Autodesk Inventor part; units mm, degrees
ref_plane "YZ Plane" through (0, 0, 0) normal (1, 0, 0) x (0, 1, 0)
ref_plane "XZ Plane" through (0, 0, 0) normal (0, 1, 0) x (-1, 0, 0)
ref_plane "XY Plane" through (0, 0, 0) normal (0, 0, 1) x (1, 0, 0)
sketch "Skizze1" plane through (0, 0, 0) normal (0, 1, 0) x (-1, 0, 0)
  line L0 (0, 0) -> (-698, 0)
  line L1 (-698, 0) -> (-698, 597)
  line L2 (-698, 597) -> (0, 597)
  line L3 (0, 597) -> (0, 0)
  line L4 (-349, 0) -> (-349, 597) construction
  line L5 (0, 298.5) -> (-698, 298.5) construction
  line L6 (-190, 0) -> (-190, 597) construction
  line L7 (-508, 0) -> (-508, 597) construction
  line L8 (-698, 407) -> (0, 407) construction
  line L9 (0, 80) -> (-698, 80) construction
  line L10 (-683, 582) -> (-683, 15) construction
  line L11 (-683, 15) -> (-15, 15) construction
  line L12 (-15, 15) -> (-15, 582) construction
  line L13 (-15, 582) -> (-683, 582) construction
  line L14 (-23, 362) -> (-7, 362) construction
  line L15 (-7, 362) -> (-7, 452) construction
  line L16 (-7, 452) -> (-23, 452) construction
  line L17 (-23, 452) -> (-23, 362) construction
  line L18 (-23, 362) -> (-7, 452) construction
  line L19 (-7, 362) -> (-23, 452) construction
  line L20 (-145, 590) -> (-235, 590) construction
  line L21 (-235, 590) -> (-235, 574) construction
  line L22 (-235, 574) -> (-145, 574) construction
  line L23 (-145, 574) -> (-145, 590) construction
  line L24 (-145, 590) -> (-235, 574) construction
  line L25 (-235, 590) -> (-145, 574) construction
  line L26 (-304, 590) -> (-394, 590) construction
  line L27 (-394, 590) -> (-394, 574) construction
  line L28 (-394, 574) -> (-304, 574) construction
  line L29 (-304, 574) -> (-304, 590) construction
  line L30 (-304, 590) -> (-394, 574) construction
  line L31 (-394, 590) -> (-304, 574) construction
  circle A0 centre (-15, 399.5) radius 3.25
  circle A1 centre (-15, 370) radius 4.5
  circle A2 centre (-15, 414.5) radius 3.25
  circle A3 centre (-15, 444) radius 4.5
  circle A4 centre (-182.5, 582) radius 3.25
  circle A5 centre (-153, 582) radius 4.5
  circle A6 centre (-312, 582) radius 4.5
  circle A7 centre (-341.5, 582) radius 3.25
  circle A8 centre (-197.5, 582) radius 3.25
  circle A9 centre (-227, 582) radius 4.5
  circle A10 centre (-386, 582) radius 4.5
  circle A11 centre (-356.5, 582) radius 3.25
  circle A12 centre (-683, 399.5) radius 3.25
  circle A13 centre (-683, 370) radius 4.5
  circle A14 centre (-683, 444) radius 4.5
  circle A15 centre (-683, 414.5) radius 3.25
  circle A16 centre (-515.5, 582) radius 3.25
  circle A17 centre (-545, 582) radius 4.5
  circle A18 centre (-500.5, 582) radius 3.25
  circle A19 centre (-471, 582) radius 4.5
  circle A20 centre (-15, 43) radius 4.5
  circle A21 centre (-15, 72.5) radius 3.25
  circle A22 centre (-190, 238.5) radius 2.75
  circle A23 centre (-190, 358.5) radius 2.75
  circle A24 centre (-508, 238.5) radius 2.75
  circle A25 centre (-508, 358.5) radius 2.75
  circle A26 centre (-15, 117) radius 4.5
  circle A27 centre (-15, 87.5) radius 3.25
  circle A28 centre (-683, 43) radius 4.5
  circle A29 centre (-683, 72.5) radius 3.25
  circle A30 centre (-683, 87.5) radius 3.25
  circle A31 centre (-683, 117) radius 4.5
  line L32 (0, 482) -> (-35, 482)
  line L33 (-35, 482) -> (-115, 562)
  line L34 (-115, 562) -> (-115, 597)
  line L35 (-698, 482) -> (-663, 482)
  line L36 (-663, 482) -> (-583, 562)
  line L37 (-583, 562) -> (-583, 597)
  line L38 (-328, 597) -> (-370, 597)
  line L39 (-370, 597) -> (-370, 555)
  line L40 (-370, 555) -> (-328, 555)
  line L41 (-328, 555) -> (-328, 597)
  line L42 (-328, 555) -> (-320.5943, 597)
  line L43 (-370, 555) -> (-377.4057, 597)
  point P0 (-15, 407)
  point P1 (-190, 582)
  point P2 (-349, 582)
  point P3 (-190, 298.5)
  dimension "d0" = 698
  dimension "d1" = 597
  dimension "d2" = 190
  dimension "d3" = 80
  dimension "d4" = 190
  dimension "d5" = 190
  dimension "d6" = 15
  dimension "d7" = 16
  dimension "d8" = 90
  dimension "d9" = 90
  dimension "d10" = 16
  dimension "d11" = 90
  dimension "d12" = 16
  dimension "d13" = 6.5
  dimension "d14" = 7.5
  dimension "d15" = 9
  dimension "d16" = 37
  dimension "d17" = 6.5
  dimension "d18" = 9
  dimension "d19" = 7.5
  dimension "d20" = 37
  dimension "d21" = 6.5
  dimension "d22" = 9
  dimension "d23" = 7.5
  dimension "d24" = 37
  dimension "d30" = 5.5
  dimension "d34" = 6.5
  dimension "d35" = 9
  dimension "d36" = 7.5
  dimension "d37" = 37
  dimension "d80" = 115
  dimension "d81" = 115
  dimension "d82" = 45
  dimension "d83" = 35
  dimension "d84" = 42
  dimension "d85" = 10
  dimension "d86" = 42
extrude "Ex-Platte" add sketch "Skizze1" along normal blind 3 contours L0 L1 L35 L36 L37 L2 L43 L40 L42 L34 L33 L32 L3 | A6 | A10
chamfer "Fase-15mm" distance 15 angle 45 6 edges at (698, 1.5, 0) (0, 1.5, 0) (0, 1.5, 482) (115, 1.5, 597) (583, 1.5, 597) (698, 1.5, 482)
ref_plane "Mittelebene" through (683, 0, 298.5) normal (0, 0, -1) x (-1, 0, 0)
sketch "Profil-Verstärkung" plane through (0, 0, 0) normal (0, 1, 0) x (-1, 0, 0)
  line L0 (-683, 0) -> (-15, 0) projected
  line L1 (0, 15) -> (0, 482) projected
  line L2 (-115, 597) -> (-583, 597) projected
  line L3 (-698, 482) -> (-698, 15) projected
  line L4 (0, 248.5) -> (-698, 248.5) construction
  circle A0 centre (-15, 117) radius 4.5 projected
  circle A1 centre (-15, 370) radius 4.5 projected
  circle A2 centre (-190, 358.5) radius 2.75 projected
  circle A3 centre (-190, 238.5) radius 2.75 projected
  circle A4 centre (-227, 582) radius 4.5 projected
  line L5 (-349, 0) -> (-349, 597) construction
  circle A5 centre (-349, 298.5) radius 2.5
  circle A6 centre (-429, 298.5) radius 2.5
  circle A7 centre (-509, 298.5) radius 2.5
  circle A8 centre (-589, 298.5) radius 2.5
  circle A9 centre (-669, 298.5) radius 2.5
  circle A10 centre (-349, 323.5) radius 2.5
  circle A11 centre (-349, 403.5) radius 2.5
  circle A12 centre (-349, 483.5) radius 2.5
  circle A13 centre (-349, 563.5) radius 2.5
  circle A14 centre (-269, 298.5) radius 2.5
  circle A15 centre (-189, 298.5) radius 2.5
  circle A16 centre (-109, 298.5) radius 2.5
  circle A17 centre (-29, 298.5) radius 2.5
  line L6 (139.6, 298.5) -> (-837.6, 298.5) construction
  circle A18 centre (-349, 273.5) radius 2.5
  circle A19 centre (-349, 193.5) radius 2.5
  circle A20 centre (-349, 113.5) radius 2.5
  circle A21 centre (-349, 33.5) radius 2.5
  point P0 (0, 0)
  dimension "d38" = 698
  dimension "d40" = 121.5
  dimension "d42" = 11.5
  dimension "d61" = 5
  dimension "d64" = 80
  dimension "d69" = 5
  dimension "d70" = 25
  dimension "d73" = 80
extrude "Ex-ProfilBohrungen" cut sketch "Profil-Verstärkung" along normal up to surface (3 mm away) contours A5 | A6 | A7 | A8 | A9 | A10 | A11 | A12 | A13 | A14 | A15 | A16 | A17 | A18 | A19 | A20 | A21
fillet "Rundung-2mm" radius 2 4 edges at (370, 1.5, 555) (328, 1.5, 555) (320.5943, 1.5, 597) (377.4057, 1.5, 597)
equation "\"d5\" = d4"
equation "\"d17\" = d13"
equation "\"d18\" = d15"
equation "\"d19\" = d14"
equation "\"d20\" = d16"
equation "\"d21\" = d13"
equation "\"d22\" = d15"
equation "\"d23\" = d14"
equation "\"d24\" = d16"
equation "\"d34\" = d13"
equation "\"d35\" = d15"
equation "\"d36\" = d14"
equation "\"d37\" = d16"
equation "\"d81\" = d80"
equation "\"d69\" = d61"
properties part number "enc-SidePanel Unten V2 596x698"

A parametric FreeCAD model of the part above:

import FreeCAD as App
import Part
import Sketcher
from FreeCAD import Vector
Q = App.Units.Quantity


def edges_at(feature, points):
    """Names of the edges that pass closest to the given points."""
    edges = feature.Shape.Edges
    near = lambda p: min(range(len(edges)), key=lambda i: edges[i].distToShape(Part.Vertex(*p))[0])
    return sorted({f"Edge{near(p) + 1}" for p in points})

doc = App.newDocument("Part")
params = doc.addObject("Spreadsheet::Sheet", "Params")
for row, (alias, value) in enumerate([
    ("sketch1_diameter", "9 mm"),
    ("sketch1_diameter2", "6.5 mm"),
    ("sketch1_diameter3", "5.5 mm"),
    ("sketch1_width", "698 mm"),
    ("sketch1_width2", "35 mm"),
    ("pad1_length", "3 mm"),
    ("chamfer_size", "15 mm"),
    ("sketch2_diameter", "5 mm"),
    ("pocket1_length", "3 mm"),
    ("fillet_radius", "2 mm"),
], start=1):
    params.set(f"A{row}", alias)
    params.set(f"B{row}", "=" + value)
    params.setAlias(f"B{row}", alias)

body = doc.addObject("PartDesign::Body", "Body")

# Sketch on XZ plane
sketch1 = body.newObject("Sketcher::SketchObject", "Sketch")
sketch1.AttachmentSupport = (doc.getObject("XZ_Plane"), [""])
sketch1.MapMode = "FlatFace"
sketch1.addGeometry([
    Part.LineSegment(Vector(698, 0, 0), Vector(0, 0, 0)),  # 0
    Part.LineSegment(Vector(0, 0, 0), Vector(0, 482, 0)),  # 1
    Part.LineSegment(Vector(0, 482, 0), Vector(35, 482, 0)),  # 2
    Part.LineSegment(Vector(35, 482, 0), Vector(115, 562, 0)),  # 3
    Part.LineSegment(Vector(115, 562, 0), Vector(115, 597, 0)),  # 4
    Part.LineSegment(Vector(115, 597, 0), Vector(320.6, 597, 0)),  # 5
    Part.LineSegment(Vector(320.6, 597, 0), Vector(328, 555, 0)),  # 6
    Part.LineSegment(Vector(328, 555, 0), Vector(370, 555, 0)),  # 7
    Part.LineSegment(Vector(370, 555, 0), Vector(377.4, 597, 0)),  # 8
    Part.LineSegment(Vector(377.4, 597, 0), Vector(583, 597, 0)),  # 9
    Part.LineSegment(Vector(583, 597, 0), Vector(583, 562, 0)),  # 10
    Part.LineSegment(Vector(583, 562, 0), Vector(663, 482, 0)),  # 11
    Part.LineSegment(Vector(663, 482, 0), Vector(698, 482, 0)),  # 12
    Part.LineSegment(Vector(698, 482, 0), Vector(698, 0, 0)),  # 13
    Part.Circle(Vector(683, 43, 0), Vector(0, 0, 1), 4.5),  # 14
    Part.Circle(Vector(683, 72.5, 0), Vector(0, 0, 1), 3.2),  # 15
    Part.Circle(Vector(683, 87.5, 0), Vector(0, 0, 1), 3.2),  # 16
    Part.Circle(Vector(683, 117, 0), Vector(0, 0, 1), 4.5),  # 17
    Part.Circle(Vector(508, 238.5, 0), Vector(0, 0, 1), 2.8),  # 18
    Part.Circle(Vector(15, 43, 0), Vector(0, 0, 1), 4.5),  # 19
    Part.Circle(Vector(15, 72.5, 0), Vector(0, 0, 1), 3.2),  # 20
    Part.Circle(Vector(15, 87.5, 0), Vector(0, 0, 1), 3.2),  # 21
    Part.Circle(Vector(15, 117, 0), Vector(0, 0, 1), 4.5),  # 22
    Part.Circle(Vector(190, 238.5, 0), Vector(0, 0, 1), 2.8),  # 23
    Part.Circle(Vector(683, 370, 0), Vector(0, 0, 1), 4.5),  # 24
    Part.Circle(Vector(683, 399.5, 0), Vector(0, 0, 1), 3.2),  # 25
    Part.Circle(Vector(683, 414.5, 0), Vector(0, 0, 1), 3.2),  # 26
    Part.Circle(Vector(683, 444, 0), Vector(0, 0, 1), 4.5),  # 27
    Part.Circle(Vector(508, 358.5, 0), Vector(0, 0, 1), 2.8),  # 28
    Part.Circle(Vector(545, 582, 0), Vector(0, 0, 1), 4.5),  # 29
    Part.Circle(Vector(515.5, 582, 0), Vector(0, 0, 1), 3.2),  # 30
    Part.Circle(Vector(500.5, 582, 0), Vector(0, 0, 1), 3.2),  # 31
    Part.Circle(Vector(471, 582, 0), Vector(0, 0, 1), 4.5),  # 32
    Part.Circle(Vector(190, 358.5, 0), Vector(0, 0, 1), 2.8),  # 33
    Part.Circle(Vector(15, 370, 0), Vector(0, 0, 1), 4.5),  # 34
    Part.Circle(Vector(15, 399.5, 0), Vector(0, 0, 1), 3.2),  # 35
    Part.Circle(Vector(15, 414.5, 0), Vector(0, 0, 1), 3.2),  # 36
    Part.Circle(Vector(15, 444, 0), Vector(0, 0, 1), 4.5),  # 37
    Part.Circle(Vector(227, 582, 0), Vector(0, 0, 1), 4.5),  # 38
    Part.Circle(Vector(197.5, 582, 0), Vector(0, 0, 1), 3.2),  # 39
    Part.Circle(Vector(182.5, 582, 0), Vector(0, 0, 1), 3.2),  # 40
    Part.Circle(Vector(153, 582, 0), Vector(0, 0, 1), 4.5),  # 41
], False)
sketch1.addConstraint([
    Sketcher.Constraint("Coincident", 0, 2, 1, 1),
    Sketcher.Constraint("Coincident", 1, 2, 2, 1),
    Sketcher.Constraint("Coincident", 2, 2, 3, 1),
    Sketcher.Constraint("Coincident", 3, 2, 4, 1),
    Sketcher.Constraint("Coincident", 4, 2, 5, 1),
    Sketcher.Constraint("Coincident", 5, 2, 6, 1),
    Sketcher.Constraint("Coincident", 6, 2, 7, 1),
    Sketcher.Constraint("Coincident", 7, 2, 8, 1),
    Sketcher.Constraint("Coincident", 8, 2, 9, 1),
    Sketcher.Constraint("Coincident", 9, 2, 10, 1),
    Sketcher.Constraint("Coincident", 10, 2, 11, 1),
    Sketcher.Constraint("Coincident", 11, 2, 12, 1),
    Sketcher.Constraint("Coincident", 12, 2, 13, 1),
    Sketcher.Constraint("Coincident", 13, 2, 0, 1),
    Sketcher.Constraint("Horizontal", 0),
    Sketcher.Constraint("Vertical", 1),
    Sketcher.Constraint("Horizontal", 2),
    Sketcher.Constraint("Vertical", 4),
    Sketcher.Constraint("Horizontal", 5),
    Sketcher.Constraint("Horizontal", 7),
    Sketcher.Constraint("Horizontal", 9),
    Sketcher.Constraint("Vertical", 10),
    Sketcher.Constraint("Horizontal", 12),
    Sketcher.Constraint("Vertical", 13),
    Sketcher.Constraint("Coincident", 0, 2, -1, 1),
    Sketcher.Constraint("Equal", 15, 16),
    Sketcher.Constraint("Equal", 14, 17),
    Sketcher.Constraint("Equal", 17, 19),
    Sketcher.Constraint("Equal", 16, 20),
    Sketcher.Constraint("Equal", 20, 21),
    Sketcher.Constraint("Equal", 19, 22),
    Sketcher.Constraint("Equal", 18, 23),
    Sketcher.Constraint("Equal", 22, 24),
    Sketcher.Constraint("Equal", 21, 25),
    Sketcher.Constraint("Equal", 25, 26),
    Sketcher.Constraint("Equal", 24, 27),
    Sketcher.Constraint("Equal", 23, 28),
    Sketcher.Constraint("Equal", 27, 29),
    Sketcher.Constraint("Equal", 26, 30),
    Sketcher.Constraint("Equal", 30, 31),
    Sketcher.Constraint("Equal", 29, 32),
    Sketcher.Constraint("Equal", 28, 33),
    Sketcher.Constraint("Equal", 32, 34),
    Sketcher.Constraint("Equal", 31, 35),
    Sketcher.Constraint("Equal", 35, 36),
    Sketcher.Constraint("Equal", 34, 37),
    Sketcher.Constraint("Equal", 37, 38),
    Sketcher.Constraint("Equal", 36, 39),
    Sketcher.Constraint("Equal", 39, 40),
    Sketcher.Constraint("Equal", 38, 41),
    Sketcher.Constraint("Perpendicular", 3, 11),
    Sketcher.Constraint("Horizontal", 14, 3, 19, 3),
    Sketcher.Constraint("Horizontal", 15, 3, 20, 3),
    Sketcher.Constraint("Horizontal", 16, 3, 21, 3),
    Sketcher.Constraint("Horizontal", 17, 3, 22, 3),
    Sketcher.Constraint("Horizontal", 18, 3, 23, 3),
    Sketcher.Constraint("Horizontal", 29, 3, 30, 3),
    Sketcher.Constraint("Horizontal", 30, 3, 31, 3),
    Sketcher.Constraint("Horizontal", 31, 3, 32, 3),
    Sketcher.Constraint("Horizontal", 28, 3, 33, 3),
    Sketcher.Constraint("Horizontal", 24, 3, 34, 3),
    Sketcher.Constraint("Horizontal", 25, 3, 35, 3),
    Sketcher.Constraint("Horizontal", 26, 3, 36, 3),
    Sketcher.Constraint("Horizontal", 27, 3, 37, 3),
    Sketcher.Constraint("Horizontal", 32, 3, 38, 3),
    Sketcher.Constraint("Horizontal", 38, 3, 39, 3),
    Sketcher.Constraint("Horizontal", 39, 3, 40, 3),
    Sketcher.Constraint("Horizontal", 40, 3, 41, 3),
    Sketcher.Constraint("Horizontal", 5, 2, 8, 2),
    Sketcher.Constraint("Horizontal", 3, 2, 10, 2),
    Sketcher.Constraint("Horizontal", 2, 2, 11, 2),
    Sketcher.Constraint("Vertical", 14, 3, 15, 3),
    Sketcher.Constraint("Vertical", 15, 3, 16, 3),
    Sketcher.Constraint("Vertical", 16, 3, 17, 3),
    Sketcher.Constraint("Vertical", 19, 3, 20, 3),
    Sketcher.Constraint("Vertical", 20, 3, 21, 3),
    Sketcher.Constraint("Vertical", 21, 3, 22, 3),
    Sketcher.Constraint("Vertical", 17, 3, 24, 3),
    Sketcher.Constraint("Vertical", 24, 3, 25, 3),
    Sketcher.Constraint("Vertical", 25, 3, 26, 3),
    Sketcher.Constraint("Vertical", 26, 3, 27, 3),
    Sketcher.Constraint("Vertical", 18, 3, 28, 3),
    Sketcher.Constraint("Vertical", 23, 3, 33, 3),
    Sketcher.Constraint("Vertical", 22, 3, 34, 3),
    Sketcher.Constraint("Vertical", 34, 3, 35, 3),
    Sketcher.Constraint("Vertical", 35, 3, 36, 3),
    Sketcher.Constraint("Vertical", 36, 3, 37, 3),
    Sketcher.Constraint("Equal", 5, 9),
    Sketcher.Constraint("Equal", 2, 12),
    Sketcher.Constraint("Equal", 12, 4),
    Sketcher.Constraint("Equal", 6, 8),
    Sketcher.Constraint("Equal", 3, 11),
    Sketcher.Constraint("Diameter", 14, 9.0),
    Sketcher.Constraint("Diameter", 15, 6.5),
    Sketcher.Constraint("Diameter", 18, 5.5),
    Sketcher.Constraint("DistanceX", 0, 2, 0, 1, 698.0),
    Sketcher.Constraint("DistanceX", 2, 1, 2, 2, 35.0),
    Sketcher.Constraint("DistanceX", 7, 1, 7, 2, 42.0),
    Sketcher.Constraint("Angle", 6, Q("-80 deg")),
    Sketcher.Constraint("DistanceX", -1, 1, 19, 3, 15.0),
    Sketcher.Constraint("DistanceX", -1, 1, 23, 3, 190.0),
    Sketcher.Constraint("DistanceX", -1, 1, 3, 2, 115.0),
    Sketcher.Constraint("DistanceY", -1, 1, 4, 2, 597.0),
    Sketcher.Constraint("DistanceY", 15, 3, 16, 3, 15.0),
    Sketcher.Constraint("DistanceY", 25, 3, 26, 3, 15.0),
    Sketcher.Constraint("DistanceX", 28, 3, 29, 3, 37.0),
    Sketcher.Constraint("DistanceX", 31, 3, 30, 3, 15.0),
    Sketcher.Constraint("DistanceX", 32, 3, 28, 3, 37.0),
    Sketcher.Constraint("DistanceX", 33, 3, 38, 3, 37.0),
    Sketcher.Constraint("DistanceX", 40, 3, 39, 3, 15.0),
    Sketcher.Constraint("DistanceY", 41, 3, 4, 2, 15.0),
    Sketcher.Constraint("DistanceY", 6, 2, 5, 2, 42.0),
    Sketcher.Constraint("DistanceX", 27, 3, 12, 2, 15.0),
    Sketcher.Constraint("DistanceX", 18, 3, 13, 2, 190.0),
    Sketcher.Constraint("DistanceX", 28, 3, 30, 3, 7.5),
    Sketcher.Constraint("DistanceX", 33, 3, 39, 3, 7.5),
    Sketcher.Constraint("DistanceY", -1, 1, 14, 3, 43.0),
    Sketcher.Constraint("DistanceY", -1, 1, 17, 3, 117.0),
    Sketcher.Constraint("DistanceY", -1, 1, 24, 3, 370.0),
    Sketcher.Constraint("DistanceY", -1, 1, 27, 3, 444.0),
    Sketcher.Constraint("DistanceX", -1, 1, 41, 3, 153.0),
    Sketcher.Constraint("DistanceY", 16, 3, 18, 3, 151.0),
    Sketcher.Constraint("DistanceY", 18, 3, 25, 3, 161.0),
    Sketcher.Constraint("DistanceY", 18, 3, 28, 3, 120.0),
    Sketcher.Constraint("DistanceY", -1, 1, 15, 3, 72.5),
])
sketch1.setExpression("Constraints[92]", "Params.sketch1_diameter")
sketch1.setExpression("Constraints[93]", "Params.sketch1_diameter2")
sketch1.setExpression("Constraints[94]", "Params.sketch1_diameter3")
sketch1.setExpression("Constraints[95]", "Params.sketch1_width")
sketch1.setExpression("Constraints[96]", "Params.sketch1_width2")
pad1 = body.newObject("PartDesign::Pad", "Pad")
pad1.Profile = sketch1
pad1.setExpression("Length", "Params.pad1_length")
pad1.Reversed = True
doc.recompute()

chamfer = body.newObject("PartDesign::Chamfer", "Chamfer")
chamfer.Base = (pad1, edges_at(pad1, [
    (698, 1.5, 0),
    (0, 1.5, 0),
    (0, 1.5, 482),
    (115, 1.5, 597),
    (583, 1.5, 597),
    (698, 1.5, 482),
]))
chamfer.setExpression("Size", "Params.chamfer_size")

# Sketch on XZ plane
sketch2 = body.newObject("Sketcher::SketchObject", "Sketch001")
sketch2.AttachmentSupport = (doc.getObject("XZ_Plane"), [""])
sketch2.MapMode = "FlatFace"
sketch2.addGeometry([
    Part.Circle(Vector(349, 298.5, 0), Vector(0, 0, 1), 2.5),  # 0
    Part.Circle(Vector(429, 298.5, 0), Vector(0, 0, 1), 2.5),  # 1
    Part.Circle(Vector(509, 298.5, 0), Vector(0, 0, 1), 2.5),  # 2
    Part.Circle(Vector(589, 298.5, 0), Vector(0, 0, 1), 2.5),  # 3
    Part.Circle(Vector(669, 298.5, 0), Vector(0, 0, 1), 2.5),  # 4
    Part.Circle(Vector(349, 323.5, 0), Vector(0, 0, 1), 2.5),  # 5
    Part.Circle(Vector(349, 403.5, 0), Vector(0, 0, 1), 2.5),  # 6
    Part.Circle(Vector(349, 483.5, 0), Vector(0, 0, 1), 2.5),  # 7
    Part.Circle(Vector(349, 563.5, 0), Vector(0, 0, 1), 2.5),  # 8
    Part.Circle(Vector(269, 298.5, 0), Vector(0, 0, 1), 2.5),  # 9
    Part.Circle(Vector(189, 298.5, 0), Vector(0, 0, 1), 2.5),  # 10
    Part.Circle(Vector(109, 298.5, 0), Vector(0, 0, 1), 2.5),  # 11
    Part.Circle(Vector(29, 298.5, 0), Vector(0, 0, 1), 2.5),  # 12
    Part.Circle(Vector(349, 273.5, 0), Vector(0, 0, 1), 2.5),  # 13
    Part.Circle(Vector(349, 193.5, 0), Vector(0, 0, 1), 2.5),  # 14
    Part.Circle(Vector(349, 113.5, 0), Vector(0, 0, 1), 2.5),  # 15
    Part.Circle(Vector(349, 33.5, 0), Vector(0, 0, 1), 2.5),  # 16
], False)
sketch2.addConstraint([
    Sketcher.Constraint("Equal", 0, 1),
    Sketcher.Constraint("Equal", 1, 2),
    Sketcher.Constraint("Equal", 2, 3),
    Sketcher.Constraint("Equal", 3, 4),
    Sketcher.Constraint("Equal", 4, 5),
    Sketcher.Constraint("Equal", 5, 6),
    Sketcher.Constraint("Equal", 6, 7),
    Sketcher.Constraint("Equal", 7, 8),
    Sketcher.Constraint("Equal", 8, 9),
    Sketcher.Constraint("Equal", 9, 10),
    Sketcher.Constraint("Equal", 10, 11),
    Sketcher.Constraint("Equal", 11, 12),
    Sketcher.Constraint("Equal", 12, 13),
    Sketcher.Constraint("Equal", 13, 14),
    Sketcher.Constraint("Equal", 14, 15),
    Sketcher.Constraint("Equal", 15, 16),
    Sketcher.Constraint("Horizontal", 0, 3, 1, 3),
    Sketcher.Constraint("Horizontal", 1, 3, 2, 3),
    Sketcher.Constraint("Horizontal", 2, 3, 3, 3),
    Sketcher.Constraint("Horizontal", 3, 3, 4, 3),
    Sketcher.Constraint("Horizontal", 4, 3, 9, 3),
    Sketcher.Constraint("Horizontal", 9, 3, 10, 3),
    Sketcher.Constraint("Horizontal", 10, 3, 11, 3),
    Sketcher.Constraint("Horizontal", 11, 3, 12, 3),
    Sketcher.Constraint("Vertical", 0, 3, 5, 3),
    Sketcher.Constraint("Vertical", 5, 3, 6, 3),
    Sketcher.Constraint("Vertical", 6, 3, 7, 3),
    Sketcher.Constraint("Vertical", 7, 3, 8, 3),
    Sketcher.Constraint("Vertical", 8, 3, 13, 3),
    Sketcher.Constraint("Vertical", 13, 3, 14, 3),
    Sketcher.Constraint("Vertical", 14, 3, 15, 3),
    Sketcher.Constraint("Vertical", 15, 3, 16, 3),
    Sketcher.Constraint("Diameter", 0, 5.0),
    Sketcher.Constraint("DistanceX", 0, 3, 1, 3, 80.0),
    Sketcher.Constraint("DistanceX", 1, 3, 2, 3, 80.0),
    Sketcher.Constraint("DistanceX", 2, 3, 3, 3, 80.0),
    Sketcher.Constraint("DistanceX", 3, 3, 4, 3, 80.0),
    Sketcher.Constraint("DistanceY", 0, 3, 5, 3, 25.0),
    Sketcher.Constraint("DistanceY", 5, 3, 6, 3, 80.0),
    Sketcher.Constraint("DistanceY", 6, 3, 7, 3, 80.0),
    Sketcher.Constraint("DistanceY", 7, 3, 8, 3, 80.0),
    Sketcher.Constraint("DistanceX", 9, 3, 0, 3, 80.0),
    Sketcher.Constraint("DistanceX", 10, 3, 9, 3, 80.0),
    Sketcher.Constraint("DistanceX", 11, 3, 10, 3, 80.0),
    Sketcher.Constraint("DistanceX", 12, 3, 11, 3, 80.0),
    Sketcher.Constraint("DistanceY", 13, 3, 0, 3, 25.0),
    Sketcher.Constraint("DistanceY", 14, 3, 13, 3, 80.0),
    Sketcher.Constraint("DistanceY", 15, 3, 14, 3, 80.0),
    Sketcher.Constraint("DistanceY", 16, 3, 15, 3, 80.0),
    Sketcher.Constraint("DistanceX", -1, 1, 0, 3, 349.0),
    Sketcher.Constraint("DistanceY", -1, 1, 0, 3, 298.5),
])
sketch2.setExpression("Constraints[32]", "Params.sketch2_diameter")
pocket1 = body.newObject("PartDesign::Pocket", "Pocket")
pocket1.Profile = sketch2
pocket1.setExpression("Length", "Params.pocket1_length")
doc.recompute()

fillet = body.newObject("PartDesign::Fillet", "Fillet")
fillet.Base = (pocket1, edges_at(pocket1, [
    (370, 1.5, 555),
    (328, 1.5, 555),
    (320.594, 1.5, 597),
    (377.406, 1.5, 597),
]))
fillet.setExpression("Radius", "Params.fillet_radius")

doc.recompute()
